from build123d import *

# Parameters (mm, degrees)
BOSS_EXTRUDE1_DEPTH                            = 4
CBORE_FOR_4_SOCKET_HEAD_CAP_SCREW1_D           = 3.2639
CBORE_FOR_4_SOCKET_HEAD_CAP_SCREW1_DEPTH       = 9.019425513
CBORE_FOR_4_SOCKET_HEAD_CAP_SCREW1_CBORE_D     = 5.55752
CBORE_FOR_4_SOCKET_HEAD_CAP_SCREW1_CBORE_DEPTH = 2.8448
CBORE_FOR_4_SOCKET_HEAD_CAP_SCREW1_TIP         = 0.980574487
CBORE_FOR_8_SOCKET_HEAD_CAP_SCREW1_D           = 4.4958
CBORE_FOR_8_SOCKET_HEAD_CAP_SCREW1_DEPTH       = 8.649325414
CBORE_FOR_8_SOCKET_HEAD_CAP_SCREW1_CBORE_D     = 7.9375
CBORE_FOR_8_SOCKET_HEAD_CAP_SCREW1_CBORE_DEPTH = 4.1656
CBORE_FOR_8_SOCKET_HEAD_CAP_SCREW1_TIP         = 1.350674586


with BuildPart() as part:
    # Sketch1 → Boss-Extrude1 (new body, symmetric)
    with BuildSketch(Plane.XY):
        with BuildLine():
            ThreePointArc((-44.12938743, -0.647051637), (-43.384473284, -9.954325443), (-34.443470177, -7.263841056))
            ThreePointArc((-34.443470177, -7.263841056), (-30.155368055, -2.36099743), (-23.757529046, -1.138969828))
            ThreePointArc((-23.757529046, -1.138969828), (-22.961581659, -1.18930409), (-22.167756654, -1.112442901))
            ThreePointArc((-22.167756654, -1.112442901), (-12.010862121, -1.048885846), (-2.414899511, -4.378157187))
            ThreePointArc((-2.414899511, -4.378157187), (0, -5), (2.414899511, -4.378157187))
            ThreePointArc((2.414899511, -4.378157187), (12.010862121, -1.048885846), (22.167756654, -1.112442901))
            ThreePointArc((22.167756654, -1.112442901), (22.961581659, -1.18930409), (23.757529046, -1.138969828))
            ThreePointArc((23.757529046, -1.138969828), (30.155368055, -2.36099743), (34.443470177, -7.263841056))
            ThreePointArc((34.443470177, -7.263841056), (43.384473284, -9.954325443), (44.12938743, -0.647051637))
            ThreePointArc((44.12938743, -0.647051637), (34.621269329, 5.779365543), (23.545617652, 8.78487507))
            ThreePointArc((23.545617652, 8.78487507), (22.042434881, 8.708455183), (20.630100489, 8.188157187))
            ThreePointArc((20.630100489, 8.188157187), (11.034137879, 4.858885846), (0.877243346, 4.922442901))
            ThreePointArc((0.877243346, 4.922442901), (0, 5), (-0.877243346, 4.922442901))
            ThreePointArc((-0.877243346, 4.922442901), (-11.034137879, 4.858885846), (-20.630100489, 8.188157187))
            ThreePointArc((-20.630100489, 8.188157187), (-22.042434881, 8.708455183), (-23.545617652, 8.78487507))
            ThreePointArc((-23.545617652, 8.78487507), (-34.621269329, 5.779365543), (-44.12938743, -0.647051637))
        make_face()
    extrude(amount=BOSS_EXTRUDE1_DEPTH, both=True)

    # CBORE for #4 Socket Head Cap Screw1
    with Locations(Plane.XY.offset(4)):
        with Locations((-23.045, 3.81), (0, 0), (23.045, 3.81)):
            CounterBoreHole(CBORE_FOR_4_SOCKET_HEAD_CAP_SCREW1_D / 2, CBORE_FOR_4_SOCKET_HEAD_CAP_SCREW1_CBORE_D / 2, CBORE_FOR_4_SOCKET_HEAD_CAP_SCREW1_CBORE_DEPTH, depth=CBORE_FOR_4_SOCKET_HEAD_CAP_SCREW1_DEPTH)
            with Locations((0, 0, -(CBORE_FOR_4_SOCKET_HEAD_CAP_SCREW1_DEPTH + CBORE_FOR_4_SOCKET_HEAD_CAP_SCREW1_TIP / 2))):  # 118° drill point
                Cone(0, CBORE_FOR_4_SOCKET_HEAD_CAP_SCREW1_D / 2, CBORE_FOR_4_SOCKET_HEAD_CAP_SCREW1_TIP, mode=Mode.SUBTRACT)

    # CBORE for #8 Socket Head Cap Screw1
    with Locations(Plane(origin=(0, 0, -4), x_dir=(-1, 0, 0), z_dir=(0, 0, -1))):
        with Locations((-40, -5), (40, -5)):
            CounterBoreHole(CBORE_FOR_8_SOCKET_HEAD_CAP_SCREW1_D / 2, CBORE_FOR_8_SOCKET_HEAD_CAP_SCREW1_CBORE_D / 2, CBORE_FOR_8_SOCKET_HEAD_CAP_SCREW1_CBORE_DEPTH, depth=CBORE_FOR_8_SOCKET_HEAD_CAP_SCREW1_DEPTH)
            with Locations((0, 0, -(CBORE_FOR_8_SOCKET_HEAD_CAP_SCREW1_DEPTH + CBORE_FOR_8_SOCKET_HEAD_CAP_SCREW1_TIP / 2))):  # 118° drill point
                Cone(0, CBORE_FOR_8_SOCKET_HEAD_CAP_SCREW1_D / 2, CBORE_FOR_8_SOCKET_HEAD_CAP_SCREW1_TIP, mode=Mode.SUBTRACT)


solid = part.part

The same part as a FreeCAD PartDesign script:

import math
import FreeCAD as App
import Part
import Sketcher

V = App.Vector
Q = App.Units.Quantity

doc = App.newDocument("Part")
body = doc.addObject("PartDesign::Body", "Body")

# Sketch on XY plane
sketch1 = body.newObject("Sketcher::SketchObject", "Sketch")
sketch1.AttachmentSupport = (doc.getObject("XY_Plane"), [""])
sketch1.MapMode = "FlatFace"
sketch1.addGeometry([
    Part.ArcOfCircle(Part.Circle(V(-40, -5, 0), V(0, 0, 1), 6), math.radians(133.490259), math.radians(337.833038)),  # 0
    Part.ArcOfCircle(Part.Circle(V(-25.182587, -11.036909, 0), V(0, 0, 1), 10), math.radians(81.807127), math.radians(157.833038)),  # 1
    Part.ArcOfCircle(Part.Circle(V(-23.045, 3.81, 0), V(0, 0, 1), 5), math.radians(-98.192873), math.radians(-79.895231)),  # 2
    Part.ArcOfCircle(Part.Circle(V(-16.904297, -30.6471, 0), V(0, 0, 1), 30), math.radians(61.119794), math.radians(100.104769)),  # 3
    Part.ArcOfCircle(Part.Circle(V(0, 0, 0), V(0, 0, 1), 5), math.radians(-118.880206), math.radians(-61.119794)),  # 4
    Part.ArcOfCircle(Part.Circle(V(16.904297, -30.6471, 0), V(0, 0, 1), 30), math.radians(79.895231), math.radians(118.880206)),  # 5
    Part.ArcOfCircle(Part.Circle(V(23.045, 3.81, 0), V(0, 0, 1), 5), math.radians(-100.104769), math.radians(-81.807127)),  # 6
    Part.ArcOfCircle(Part.Circle(V(25.182587, -11.036909, 0), V(0, 0, 1), 10), math.radians(22.166962), math.radians(98.192873)),  # 7
    Part.ArcOfCircle(Part.Circle(V(40, -5, 0), V(0, 0, 1), 6), math.radians(-157.833038), math.radians(46.509741)),  # 8
    Part.ArcOfCircle(Part.Circle(V(20.041294, -26.03925, 0), V(0, 0, 1), 35), math.radians(46.509741), math.radians(84.253716)),  # 9
    Part.ArcOfCircle(Part.Circle(V(23.045, 3.81, 0), V(0, 0, 1), 5), math.radians(84.253716), math.radians(118.880206)),  # 10
    Part.ArcOfCircle(Part.Circle(V(6.140703, 34.4571, 0), V(0, 0, 1), 30), math.radians(-100.104769), math.radians(-61.119794)),  # 11
    Part.ArcOfCircle(Part.Circle(V(0, 0, 0), V(0, 0, 1), 5), math.radians(79.895231), math.radians(100.104769)),  # 12
    Part.ArcOfCircle(Part.Circle(V(-6.140703, 34.4571, 0), V(0, 0, 1), 30), math.radians(-118.880206), math.radians(-79.895231)),  # 13
    Part.ArcOfCircle(Part.Circle(V(-23.045, 3.81, 0), V(0, 0, 1), 5), math.radians(61.119794), math.radians(95.746284)),  # 14
    Part.ArcOfCircle(Part.Circle(V(-20.041294, -26.03925, 0), V(0, 0, 1), 35), math.radians(95.746284), math.radians(133.490259)),  # 15
], False)
sketch1.addConstraint([
    Sketcher.Constraint("Tangent", 0, 2, 1, 2),
    Sketcher.Constraint("Tangent", 1, 1, 2, 1),
    Sketcher.Constraint("Tangent", 2, 2, 3, 2),
    Sketcher.Constraint("Tangent", 3, 1, 4, 1),
    Sketcher.Constraint("Tangent", 4, 2, 5, 2),
    Sketcher.Constraint("Tangent", 5, 1, 6, 1),
    Sketcher.Constraint("Tangent", 6, 2, 7, 2),
    Sketcher.Constraint("Tangent", 7, 1, 8, 1),
    Sketcher.Constraint("Tangent", 8, 2, 9, 1),
    Sketcher.Constraint("Tangent", 9, 2, 10, 1),
    Sketcher.Constraint("Tangent", 10, 2, 11, 2),
    Sketcher.Constraint("Tangent", 11, 1, 12, 1),
    Sketcher.Constraint("Tangent", 12, 2, 13, 2),
    Sketcher.Constraint("Tangent", 13, 1, 14, 1),
    Sketcher.Constraint("Tangent", 14, 2, 15, 1),
    Sketcher.Constraint("Tangent", 15, 2, 0, 1),
    Sketcher.Constraint("Coincident", 4, 3, -1, 1),
    Sketcher.Constraint("Coincident", 12, 3, -1, 1),
    Sketcher.Constraint("Coincident", 10, 3, 6, 3),
    Sketcher.Constraint("Coincident", 14, 3, 2, 3),
    Sketcher.Constraint("Equal", 2, 4),
    Sketcher.Constraint("Equal", 3, 5),
    Sketcher.Constraint("Equal", 4, 6),
    Sketcher.Constraint("Equal", 1, 7),
    Sketcher.Constraint("Equal", 0, 8),
    Sketcher.Constraint("Equal", 6, 10),
    Sketcher.Constraint("Equal", 5, 11),
    Sketcher.Constraint("Equal", 10, 12),
    Sketcher.Constraint("Equal", 11, 13),
    Sketcher.Constraint("Equal", 12, 14),
    Sketcher.Constraint("Equal", 9, 15),
    Sketcher.Constraint("Symmetric", 2, 3, 6, 3, -2),
    Sketcher.Constraint("Symmetric", 0, 3, 8, 3, -2),
    Sketcher.Constraint("Radius", 0, Q("6 mm")),
    Sketcher.Constraint("Radius", 1, Q("10 mm")),
    Sketcher.Constraint("Radius", 2, Q("5 mm")),
    Sketcher.Constraint("Radius", 3, Q("30 mm")),
    Sketcher.Constraint("Radius", 9, Q("35 mm")),
    Sketcher.Constraint("DistanceX", 0, 3, -1, 1, Q("40 mm")),
    Sketcher.Constraint("DistanceY", 0, 3, -1, 1, Q("5 mm")),
    Sketcher.Constraint("DistanceY", -1, 1, 2, 3, Q("3.81 mm")),
    Sketcher.Constraint("DistanceX", 2, 3, 6, 3, Q("46.09 mm")),
])
pad1 = body.newObject("PartDesign::Pad", "Pad")
pad1.Profile = sketch1
pad1.Length = 8
pad1.Midplane = True

# Sketch on XY plane
sketch2 = body.newObject("Sketcher::SketchObject", "Sketch001")
sketch2.AttachmentSupport = (doc.getObject("XY_Plane"), [""])
sketch2.MapMode = "FlatFace"
sketch2.AttachmentOffset = App.Placement(V(0, 0, 4), App.Rotation())
sketch2.addGeometry([
    Part.Circle(V(-23.045, 3.81, 0), V(0, 0, 1), 1.63195),
    Part.Circle(V(0, 0, 0), V(0, 0, 1), 1.63195),
    Part.Circle(V(23.045, 3.81, 0), V(0, 0, 1), 1.63195),
], False)
sketch2.addConstraint([
    Sketcher.Constraint("Coincident", 1, 3, -1, 1),
    Sketcher.Constraint("Equal", 0, 1),
    Sketcher.Constraint("Equal", 1, 2),
    Sketcher.Constraint("Symmetric", 0, 3, 2, 3, -2),
    Sketcher.Constraint("Diameter", 0, Q("3.2639 mm")),
    Sketcher.Constraint("DistanceY", -1, 1, 0, 3, Q("3.81 mm")),
    Sketcher.Constraint("DistanceX", 0, 3, 2, 3, Q("46.09 mm")),
])
doc.recompute()
hole = body.newObject("PartDesign::Hole", "Hole")
hole.Profile = sketch2
hole.ThreadType = "None"
hole.Diameter = 3.2639
hole.DepthType = "Dimension"
hole.Depth = 9.019426
hole.DrillPoint = "Angled"
hole.DrillPointAngle = 118
hole.HoleCutType = "Counterbore"
hole.HoleCutDiameter = 5.55752
hole.HoleCutDepth = 2.8448

# Sketch on XY plane
sketch3 = body.newObject("Sketcher::SketchObject", "Sketch002")
sketch3.AttachmentSupport = (doc.getObject("XY_Plane"), [""])
sketch3.MapMode = "FlatFace"
sketch3.AttachmentOffset = App.Placement(V(0, 0, -4), App.Rotation())
sketch3.addGeometry([
    Part.Circle(V(40, -5, 0), V(0, 0, 1), 2.2479),
    Part.Circle(V(-40, -5, 0), V(0, 0, 1), 2.2479),
], False)
sketch3.addConstraint([
    Sketcher.Constraint("Equal", 0, 1),
    Sketcher.Constraint("Symmetric", 0, 3, 1, 3, -2),
    Sketcher.Constraint("DistanceX", -1, 1, 0, 3, Q("40 mm")),
    Sketcher.Constraint("DistanceY", 0, 3, -1, 1, Q("5 mm")),
    Sketcher.Constraint("Diameter", 0, Q("4.4958 mm")),
])
doc.recompute()
hole2 = body.newObject("PartDesign::Hole", "Hole001")
hole2.Profile = sketch3
hole2.ThreadType = "None"
hole2.Diameter = 4.4958
hole2.DepthType = "Dimension"
hole2.Depth = 8.649325
hole2.DrillPoint = "Angled"
hole2.DrillPointAngle = 118
hole2.HoleCutType = "Counterbore"
hole2.HoleCutDiameter = 7.9375
hole2.HoleCutDepth = 4.1656
hole2.Reversed = True

doc.recompute()
